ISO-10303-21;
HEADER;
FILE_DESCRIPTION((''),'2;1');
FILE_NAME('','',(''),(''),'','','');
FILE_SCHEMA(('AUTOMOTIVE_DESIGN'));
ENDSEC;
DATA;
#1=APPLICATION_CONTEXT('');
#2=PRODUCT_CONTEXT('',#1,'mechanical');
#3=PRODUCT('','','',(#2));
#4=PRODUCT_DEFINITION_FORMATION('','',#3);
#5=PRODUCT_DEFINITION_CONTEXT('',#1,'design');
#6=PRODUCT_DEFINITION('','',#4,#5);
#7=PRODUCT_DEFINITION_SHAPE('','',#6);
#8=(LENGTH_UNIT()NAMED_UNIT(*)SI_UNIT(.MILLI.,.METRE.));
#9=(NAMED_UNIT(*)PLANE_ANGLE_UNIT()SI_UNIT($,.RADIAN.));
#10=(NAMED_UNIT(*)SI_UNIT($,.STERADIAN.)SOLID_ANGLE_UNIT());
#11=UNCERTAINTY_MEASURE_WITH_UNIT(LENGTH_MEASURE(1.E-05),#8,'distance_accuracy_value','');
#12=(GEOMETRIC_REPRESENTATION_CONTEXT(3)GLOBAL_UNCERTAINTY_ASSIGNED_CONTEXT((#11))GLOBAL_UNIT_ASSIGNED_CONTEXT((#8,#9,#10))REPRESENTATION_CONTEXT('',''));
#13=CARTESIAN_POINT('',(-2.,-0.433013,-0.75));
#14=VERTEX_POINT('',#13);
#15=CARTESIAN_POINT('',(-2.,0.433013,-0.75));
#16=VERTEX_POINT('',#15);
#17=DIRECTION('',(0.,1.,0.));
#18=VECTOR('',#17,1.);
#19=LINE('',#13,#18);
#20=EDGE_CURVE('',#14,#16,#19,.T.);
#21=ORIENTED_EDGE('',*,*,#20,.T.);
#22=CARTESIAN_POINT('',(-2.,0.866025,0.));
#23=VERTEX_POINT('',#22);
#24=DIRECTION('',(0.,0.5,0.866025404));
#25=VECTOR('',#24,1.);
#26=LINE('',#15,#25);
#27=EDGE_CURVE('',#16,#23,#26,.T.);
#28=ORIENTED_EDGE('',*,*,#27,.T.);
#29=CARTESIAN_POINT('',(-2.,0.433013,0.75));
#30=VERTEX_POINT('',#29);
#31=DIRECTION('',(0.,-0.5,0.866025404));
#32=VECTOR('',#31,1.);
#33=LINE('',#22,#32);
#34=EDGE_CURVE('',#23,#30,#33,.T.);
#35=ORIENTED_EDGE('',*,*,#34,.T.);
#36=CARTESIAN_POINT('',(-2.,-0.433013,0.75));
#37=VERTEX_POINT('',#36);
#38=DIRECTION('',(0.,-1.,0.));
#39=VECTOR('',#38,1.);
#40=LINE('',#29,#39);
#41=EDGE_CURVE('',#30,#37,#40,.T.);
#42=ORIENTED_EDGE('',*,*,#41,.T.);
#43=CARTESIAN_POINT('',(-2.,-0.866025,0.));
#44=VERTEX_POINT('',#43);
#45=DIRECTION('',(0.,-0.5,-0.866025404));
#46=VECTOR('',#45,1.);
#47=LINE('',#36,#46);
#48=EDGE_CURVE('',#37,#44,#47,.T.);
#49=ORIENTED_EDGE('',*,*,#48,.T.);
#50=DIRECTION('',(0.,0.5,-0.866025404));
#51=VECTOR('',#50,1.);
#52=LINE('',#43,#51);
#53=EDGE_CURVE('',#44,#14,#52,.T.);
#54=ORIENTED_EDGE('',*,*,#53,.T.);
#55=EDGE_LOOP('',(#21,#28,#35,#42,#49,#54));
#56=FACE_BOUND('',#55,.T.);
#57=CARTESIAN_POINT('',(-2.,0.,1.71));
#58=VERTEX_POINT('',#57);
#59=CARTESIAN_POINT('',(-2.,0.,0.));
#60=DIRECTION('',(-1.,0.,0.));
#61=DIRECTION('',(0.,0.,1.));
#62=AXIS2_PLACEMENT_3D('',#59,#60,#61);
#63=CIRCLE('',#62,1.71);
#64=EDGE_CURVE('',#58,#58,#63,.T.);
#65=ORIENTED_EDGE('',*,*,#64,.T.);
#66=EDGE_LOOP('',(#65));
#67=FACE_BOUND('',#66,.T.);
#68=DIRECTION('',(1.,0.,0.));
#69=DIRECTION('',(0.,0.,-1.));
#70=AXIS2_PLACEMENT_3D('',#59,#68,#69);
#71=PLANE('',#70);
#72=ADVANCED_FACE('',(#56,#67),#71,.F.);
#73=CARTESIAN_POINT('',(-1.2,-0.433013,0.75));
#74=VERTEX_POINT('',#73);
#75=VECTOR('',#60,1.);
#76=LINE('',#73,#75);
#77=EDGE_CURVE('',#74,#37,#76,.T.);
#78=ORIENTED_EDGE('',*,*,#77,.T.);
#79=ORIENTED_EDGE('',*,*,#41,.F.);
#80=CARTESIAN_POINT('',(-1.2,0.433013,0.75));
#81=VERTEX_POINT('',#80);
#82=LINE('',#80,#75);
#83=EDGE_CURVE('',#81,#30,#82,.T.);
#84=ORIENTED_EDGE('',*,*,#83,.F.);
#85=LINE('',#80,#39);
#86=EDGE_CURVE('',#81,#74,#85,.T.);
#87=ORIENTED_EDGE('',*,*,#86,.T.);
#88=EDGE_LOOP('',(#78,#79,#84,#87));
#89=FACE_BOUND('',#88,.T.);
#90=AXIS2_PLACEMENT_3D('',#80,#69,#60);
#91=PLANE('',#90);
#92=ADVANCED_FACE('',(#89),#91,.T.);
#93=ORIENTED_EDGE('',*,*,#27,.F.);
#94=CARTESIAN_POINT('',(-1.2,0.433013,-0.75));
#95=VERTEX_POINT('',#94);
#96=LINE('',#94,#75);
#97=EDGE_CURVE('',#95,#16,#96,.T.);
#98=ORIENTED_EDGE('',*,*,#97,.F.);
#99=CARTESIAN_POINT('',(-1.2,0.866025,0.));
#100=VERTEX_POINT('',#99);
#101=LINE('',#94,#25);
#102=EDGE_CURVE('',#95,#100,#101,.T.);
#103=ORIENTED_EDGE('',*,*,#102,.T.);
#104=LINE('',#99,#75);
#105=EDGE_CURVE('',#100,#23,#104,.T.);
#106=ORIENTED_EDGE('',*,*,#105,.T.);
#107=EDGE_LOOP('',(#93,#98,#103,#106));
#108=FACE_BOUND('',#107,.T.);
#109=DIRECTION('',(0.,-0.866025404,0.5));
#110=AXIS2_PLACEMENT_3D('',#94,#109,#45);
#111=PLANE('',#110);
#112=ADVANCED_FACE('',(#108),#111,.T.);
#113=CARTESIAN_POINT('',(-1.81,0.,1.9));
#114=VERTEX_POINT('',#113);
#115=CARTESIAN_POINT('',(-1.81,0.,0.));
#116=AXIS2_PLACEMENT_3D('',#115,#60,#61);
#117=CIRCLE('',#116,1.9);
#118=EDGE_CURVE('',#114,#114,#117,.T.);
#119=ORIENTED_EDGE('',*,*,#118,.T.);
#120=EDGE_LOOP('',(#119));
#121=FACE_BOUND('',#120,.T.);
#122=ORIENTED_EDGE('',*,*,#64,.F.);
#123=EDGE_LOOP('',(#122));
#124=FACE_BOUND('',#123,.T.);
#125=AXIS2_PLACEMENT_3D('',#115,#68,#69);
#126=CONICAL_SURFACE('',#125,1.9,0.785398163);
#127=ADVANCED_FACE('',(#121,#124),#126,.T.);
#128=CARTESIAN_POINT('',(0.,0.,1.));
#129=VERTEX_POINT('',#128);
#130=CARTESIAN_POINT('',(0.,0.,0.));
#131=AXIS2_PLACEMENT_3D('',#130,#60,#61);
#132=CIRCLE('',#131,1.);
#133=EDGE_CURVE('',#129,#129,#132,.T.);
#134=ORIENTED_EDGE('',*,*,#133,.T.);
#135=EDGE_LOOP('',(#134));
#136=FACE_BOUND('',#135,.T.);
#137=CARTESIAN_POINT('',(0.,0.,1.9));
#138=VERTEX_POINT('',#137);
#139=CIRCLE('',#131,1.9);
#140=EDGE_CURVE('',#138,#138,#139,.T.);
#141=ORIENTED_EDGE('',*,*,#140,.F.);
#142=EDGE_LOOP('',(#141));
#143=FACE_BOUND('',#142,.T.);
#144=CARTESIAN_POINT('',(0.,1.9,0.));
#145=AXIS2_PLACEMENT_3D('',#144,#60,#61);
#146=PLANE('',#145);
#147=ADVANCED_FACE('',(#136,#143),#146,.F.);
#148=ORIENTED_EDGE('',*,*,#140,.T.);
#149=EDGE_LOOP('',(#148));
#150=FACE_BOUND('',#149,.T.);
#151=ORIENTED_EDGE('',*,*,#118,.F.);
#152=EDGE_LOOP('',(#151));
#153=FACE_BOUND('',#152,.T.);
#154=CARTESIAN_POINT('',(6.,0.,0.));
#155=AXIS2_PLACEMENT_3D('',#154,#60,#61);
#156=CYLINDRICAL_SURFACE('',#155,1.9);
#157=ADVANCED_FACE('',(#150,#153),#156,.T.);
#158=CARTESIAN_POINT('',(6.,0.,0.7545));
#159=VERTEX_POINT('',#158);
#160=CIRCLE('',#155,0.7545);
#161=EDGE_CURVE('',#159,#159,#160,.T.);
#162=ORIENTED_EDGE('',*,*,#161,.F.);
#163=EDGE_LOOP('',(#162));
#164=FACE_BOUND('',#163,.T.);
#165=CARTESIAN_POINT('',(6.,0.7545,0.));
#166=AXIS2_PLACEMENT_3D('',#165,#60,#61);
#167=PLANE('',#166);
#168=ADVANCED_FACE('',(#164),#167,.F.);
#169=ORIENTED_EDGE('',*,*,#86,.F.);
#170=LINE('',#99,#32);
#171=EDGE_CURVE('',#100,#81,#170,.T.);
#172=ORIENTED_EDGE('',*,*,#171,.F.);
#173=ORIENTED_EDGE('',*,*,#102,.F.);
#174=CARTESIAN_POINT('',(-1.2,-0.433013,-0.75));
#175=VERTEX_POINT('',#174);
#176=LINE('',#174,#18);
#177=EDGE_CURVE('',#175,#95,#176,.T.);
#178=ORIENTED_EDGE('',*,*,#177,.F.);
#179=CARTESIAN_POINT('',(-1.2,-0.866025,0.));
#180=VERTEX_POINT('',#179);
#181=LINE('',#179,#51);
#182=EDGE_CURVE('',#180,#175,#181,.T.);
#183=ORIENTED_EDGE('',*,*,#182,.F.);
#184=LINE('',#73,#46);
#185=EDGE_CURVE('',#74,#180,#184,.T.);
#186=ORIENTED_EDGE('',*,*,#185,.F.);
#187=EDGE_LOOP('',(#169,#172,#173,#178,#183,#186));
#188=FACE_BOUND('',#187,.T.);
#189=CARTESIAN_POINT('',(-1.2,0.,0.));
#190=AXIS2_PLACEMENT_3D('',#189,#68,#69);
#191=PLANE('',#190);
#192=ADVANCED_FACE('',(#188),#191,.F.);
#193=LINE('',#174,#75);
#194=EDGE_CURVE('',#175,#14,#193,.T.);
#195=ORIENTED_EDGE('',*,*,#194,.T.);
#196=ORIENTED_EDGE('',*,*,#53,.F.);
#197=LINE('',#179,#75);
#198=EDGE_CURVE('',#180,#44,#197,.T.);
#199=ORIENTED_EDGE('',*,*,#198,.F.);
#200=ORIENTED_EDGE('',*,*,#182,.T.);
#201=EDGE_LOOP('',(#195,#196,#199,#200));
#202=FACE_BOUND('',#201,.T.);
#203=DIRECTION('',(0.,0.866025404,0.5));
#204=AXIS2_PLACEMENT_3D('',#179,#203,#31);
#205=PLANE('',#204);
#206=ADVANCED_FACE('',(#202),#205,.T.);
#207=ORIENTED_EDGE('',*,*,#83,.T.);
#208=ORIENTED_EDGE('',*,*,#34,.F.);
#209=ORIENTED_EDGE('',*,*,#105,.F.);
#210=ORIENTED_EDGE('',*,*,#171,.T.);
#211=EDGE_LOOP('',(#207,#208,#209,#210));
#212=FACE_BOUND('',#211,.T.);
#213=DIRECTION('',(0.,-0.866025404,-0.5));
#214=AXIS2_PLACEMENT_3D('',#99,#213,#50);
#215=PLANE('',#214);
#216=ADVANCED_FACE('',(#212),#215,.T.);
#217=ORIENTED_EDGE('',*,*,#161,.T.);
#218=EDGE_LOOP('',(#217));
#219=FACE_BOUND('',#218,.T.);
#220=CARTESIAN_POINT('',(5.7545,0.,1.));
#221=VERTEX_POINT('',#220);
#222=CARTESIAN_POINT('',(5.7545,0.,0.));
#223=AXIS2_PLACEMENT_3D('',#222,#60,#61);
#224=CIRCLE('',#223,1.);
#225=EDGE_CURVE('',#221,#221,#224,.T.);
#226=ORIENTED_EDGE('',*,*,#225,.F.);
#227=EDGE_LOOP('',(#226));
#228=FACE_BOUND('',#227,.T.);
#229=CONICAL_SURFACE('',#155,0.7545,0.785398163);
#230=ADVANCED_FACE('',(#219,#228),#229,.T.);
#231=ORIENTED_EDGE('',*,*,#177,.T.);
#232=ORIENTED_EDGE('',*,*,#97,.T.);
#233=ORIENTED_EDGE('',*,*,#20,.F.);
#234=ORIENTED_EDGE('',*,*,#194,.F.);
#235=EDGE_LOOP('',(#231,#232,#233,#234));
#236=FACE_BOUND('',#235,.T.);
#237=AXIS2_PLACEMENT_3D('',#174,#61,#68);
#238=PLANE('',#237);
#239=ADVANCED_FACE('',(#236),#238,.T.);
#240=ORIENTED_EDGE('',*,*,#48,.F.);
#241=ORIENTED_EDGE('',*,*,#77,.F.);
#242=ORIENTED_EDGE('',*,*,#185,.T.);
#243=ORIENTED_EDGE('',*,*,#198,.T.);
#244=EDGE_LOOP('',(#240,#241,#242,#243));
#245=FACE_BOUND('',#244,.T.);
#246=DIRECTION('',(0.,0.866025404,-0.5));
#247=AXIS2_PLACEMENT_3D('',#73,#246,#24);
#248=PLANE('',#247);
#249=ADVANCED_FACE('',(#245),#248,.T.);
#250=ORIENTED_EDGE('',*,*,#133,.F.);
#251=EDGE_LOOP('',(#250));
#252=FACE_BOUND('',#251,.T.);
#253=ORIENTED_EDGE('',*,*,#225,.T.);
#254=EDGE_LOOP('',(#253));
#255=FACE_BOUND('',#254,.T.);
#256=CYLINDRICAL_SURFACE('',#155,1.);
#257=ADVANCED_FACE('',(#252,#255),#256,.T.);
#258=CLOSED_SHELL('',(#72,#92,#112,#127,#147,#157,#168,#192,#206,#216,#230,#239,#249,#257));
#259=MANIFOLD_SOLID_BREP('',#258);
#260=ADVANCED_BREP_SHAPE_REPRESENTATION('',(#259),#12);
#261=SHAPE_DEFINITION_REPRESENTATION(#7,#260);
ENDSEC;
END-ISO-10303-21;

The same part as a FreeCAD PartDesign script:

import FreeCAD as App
import Part
import Sketcher
Q = App.Units.Quantity

doc = App.newDocument("Part")
body = doc.addObject("PartDesign::Body", "Body")

sketch1 = body.newObject("Sketcher::SketchObject", "Sketch")
sketch1.AttachmentSupport = (doc.getObject("XY_Plane"), [""])
sketch1.MapMode = "FlatFace"
sketch1.addGeometry([
    Part.LineSegment(App.Vector(-2, 1.71, 0), App.Vector(-2, 0, 0)),
    Part.LineSegment(App.Vector(-2, 0, 0), App.Vector(6, 0, 0)),
    Part.LineSegment(App.Vector(6, 0, 0), App.Vector(6, 0.75, 0)),
    Part.LineSegment(App.Vector(6, 0.75, 0), App.Vector(5.75, 1, 0)),
    Part.LineSegment(App.Vector(5.75, 1, 0), App.Vector(0, 1, 0)),
    Part.LineSegment(App.Vector(0, 1, 0), App.Vector(0, 1.9, 0)),
    Part.LineSegment(App.Vector(0, 1.9, 0), App.Vector(-1.81, 1.9, 0)),
    Part.LineSegment(App.Vector(-1.81, 1.9, 0), App.Vector(-2, 1.71, 0)),
], False)
sketch1.addConstraint([
    Sketcher.Constraint("Coincident", 0, 2, 1, 1),
    Sketcher.Constraint("Coincident", 1, 2, 2, 1),
    Sketcher.Constraint("Coincident", 2, 2, 3, 1),
    Sketcher.Constraint("Coincident", 3, 2, 4, 1),
    Sketcher.Constraint("Coincident", 4, 2, 5, 1),
    Sketcher.Constraint("Coincident", 5, 2, 6, 1),
    Sketcher.Constraint("Coincident", 6, 2, 7, 1),
    Sketcher.Constraint("Coincident", 7, 2, 0, 1),
    Sketcher.Constraint("Vertical", 0),
    Sketcher.Constraint("Horizontal", 1),
    Sketcher.Constraint("Vertical", 2),
    Sketcher.Constraint("Horizontal", 4),
    Sketcher.Constraint("Vertical", 5),
    Sketcher.Constraint("Horizontal", 6),
    Sketcher.Constraint("PointOnObject", 0, 2, -1),
    Sketcher.Constraint("PointOnObject", 4, 2, -2),
    Sketcher.Constraint("Perpendicular", 3, 7),
    Sketcher.Constraint("DistanceX", 1, 1, 1, 2, 8.0),
    Sketcher.Constraint("Angle", 3, Q("135 deg")),
    Sketcher.Constraint("DistanceY", 5, 1, 5, 2, 0.9),
    Sketcher.Constraint("DistanceX", 0, 2, -1, 1, 2.0),
    Sketcher.Constraint("DistanceY", -1, 1, 3, 2, 1.0),
    Sketcher.Constraint("DistanceX", 6, 2, 6, 1, 1.81),
    Sketcher.Constraint("DistanceX", 4, 2, 4, 1, 5.7545),
])
revolution = body.newObject("PartDesign::Revolution", "Revolution")
revolution.Profile = sketch1
revolution.ReferenceAxis = (sketch1, ["H_Axis"])
revolution.Angle = 360

sketch2 = body.newObject("Sketcher::SketchObject", "Sketch001")
sketch2.AttachmentSupport = (doc.getObject("YZ_Plane"), [""])
sketch2.MapMode = "FlatFace"
sketch2.AttachmentOffset = App.Placement(App.Vector(0, 0, -2), App.Rotation())
sketch2.addGeometry([
    Part.LineSegment(App.Vector(-0.4, 0.8, 0), App.Vector(-0.9, 0, 0)),
    Part.LineSegment(App.Vector(-0.9, 0, 0), App.Vector(-0.4, -0.8, 0)),
    Part.LineSegment(App.Vector(-0.4, -0.8, 0), App.Vector(0.4, -0.8, 0)),
    Part.LineSegment(App.Vector(0.4, -0.8, 0), App.Vector(0.9, 0, 0)),
    Part.LineSegment(App.Vector(0.9, 0, 0), App.Vector(0.4, 0.8, 0)),
    Part.LineSegment(App.Vector(0.4, 0.8, 0), App.Vector(-0.4, 0.8, 0)),
], False)
sketch2.addConstraint([
    Sketcher.Constraint("Coincident", 0, 2, 1, 1),
    Sketcher.Constraint("Coincident", 1, 2, 2, 1),
    Sketcher.Constraint("Coincident", 2, 2, 3, 1),
    Sketcher.Constraint("Coincident", 3, 2, 4, 1),
    Sketcher.Constraint("Coincident", 4, 2, 5, 1),
    Sketcher.Constraint("Coincident", 5, 2, 0, 1),
    Sketcher.Constraint("Horizontal", 2),
    Sketcher.Constraint("Horizontal", 5),
    Sketcher.Constraint("Symmetric", 0, 2, 3, 2, -1, 1),
    Sketcher.Constraint("Symmetric", 1, 2, 4, 2, -1, 1),
    Sketcher.Constraint("PointOnObject", 0, 2, -1),
    Sketcher.Constraint("Parallel", 0, 3),
    Sketcher.Constraint("Vertical", 2, 2, 4, 2),
    Sketcher.Constraint("Angle", 0, Q("-120 deg")),
    Sketcher.Constraint("DistanceY", 2, 2, 4, 2, 1.5),
    Sketcher.Constraint("DistanceX", 2, 1, 2, 2, 0.866025),
])
pocket1 = body.newObject("PartDesign::Pocket", "Pocket")
pocket1.Profile = sketch2
pocket1.Length = 0.8
pocket1.Reversed = True

doc.recompute()
